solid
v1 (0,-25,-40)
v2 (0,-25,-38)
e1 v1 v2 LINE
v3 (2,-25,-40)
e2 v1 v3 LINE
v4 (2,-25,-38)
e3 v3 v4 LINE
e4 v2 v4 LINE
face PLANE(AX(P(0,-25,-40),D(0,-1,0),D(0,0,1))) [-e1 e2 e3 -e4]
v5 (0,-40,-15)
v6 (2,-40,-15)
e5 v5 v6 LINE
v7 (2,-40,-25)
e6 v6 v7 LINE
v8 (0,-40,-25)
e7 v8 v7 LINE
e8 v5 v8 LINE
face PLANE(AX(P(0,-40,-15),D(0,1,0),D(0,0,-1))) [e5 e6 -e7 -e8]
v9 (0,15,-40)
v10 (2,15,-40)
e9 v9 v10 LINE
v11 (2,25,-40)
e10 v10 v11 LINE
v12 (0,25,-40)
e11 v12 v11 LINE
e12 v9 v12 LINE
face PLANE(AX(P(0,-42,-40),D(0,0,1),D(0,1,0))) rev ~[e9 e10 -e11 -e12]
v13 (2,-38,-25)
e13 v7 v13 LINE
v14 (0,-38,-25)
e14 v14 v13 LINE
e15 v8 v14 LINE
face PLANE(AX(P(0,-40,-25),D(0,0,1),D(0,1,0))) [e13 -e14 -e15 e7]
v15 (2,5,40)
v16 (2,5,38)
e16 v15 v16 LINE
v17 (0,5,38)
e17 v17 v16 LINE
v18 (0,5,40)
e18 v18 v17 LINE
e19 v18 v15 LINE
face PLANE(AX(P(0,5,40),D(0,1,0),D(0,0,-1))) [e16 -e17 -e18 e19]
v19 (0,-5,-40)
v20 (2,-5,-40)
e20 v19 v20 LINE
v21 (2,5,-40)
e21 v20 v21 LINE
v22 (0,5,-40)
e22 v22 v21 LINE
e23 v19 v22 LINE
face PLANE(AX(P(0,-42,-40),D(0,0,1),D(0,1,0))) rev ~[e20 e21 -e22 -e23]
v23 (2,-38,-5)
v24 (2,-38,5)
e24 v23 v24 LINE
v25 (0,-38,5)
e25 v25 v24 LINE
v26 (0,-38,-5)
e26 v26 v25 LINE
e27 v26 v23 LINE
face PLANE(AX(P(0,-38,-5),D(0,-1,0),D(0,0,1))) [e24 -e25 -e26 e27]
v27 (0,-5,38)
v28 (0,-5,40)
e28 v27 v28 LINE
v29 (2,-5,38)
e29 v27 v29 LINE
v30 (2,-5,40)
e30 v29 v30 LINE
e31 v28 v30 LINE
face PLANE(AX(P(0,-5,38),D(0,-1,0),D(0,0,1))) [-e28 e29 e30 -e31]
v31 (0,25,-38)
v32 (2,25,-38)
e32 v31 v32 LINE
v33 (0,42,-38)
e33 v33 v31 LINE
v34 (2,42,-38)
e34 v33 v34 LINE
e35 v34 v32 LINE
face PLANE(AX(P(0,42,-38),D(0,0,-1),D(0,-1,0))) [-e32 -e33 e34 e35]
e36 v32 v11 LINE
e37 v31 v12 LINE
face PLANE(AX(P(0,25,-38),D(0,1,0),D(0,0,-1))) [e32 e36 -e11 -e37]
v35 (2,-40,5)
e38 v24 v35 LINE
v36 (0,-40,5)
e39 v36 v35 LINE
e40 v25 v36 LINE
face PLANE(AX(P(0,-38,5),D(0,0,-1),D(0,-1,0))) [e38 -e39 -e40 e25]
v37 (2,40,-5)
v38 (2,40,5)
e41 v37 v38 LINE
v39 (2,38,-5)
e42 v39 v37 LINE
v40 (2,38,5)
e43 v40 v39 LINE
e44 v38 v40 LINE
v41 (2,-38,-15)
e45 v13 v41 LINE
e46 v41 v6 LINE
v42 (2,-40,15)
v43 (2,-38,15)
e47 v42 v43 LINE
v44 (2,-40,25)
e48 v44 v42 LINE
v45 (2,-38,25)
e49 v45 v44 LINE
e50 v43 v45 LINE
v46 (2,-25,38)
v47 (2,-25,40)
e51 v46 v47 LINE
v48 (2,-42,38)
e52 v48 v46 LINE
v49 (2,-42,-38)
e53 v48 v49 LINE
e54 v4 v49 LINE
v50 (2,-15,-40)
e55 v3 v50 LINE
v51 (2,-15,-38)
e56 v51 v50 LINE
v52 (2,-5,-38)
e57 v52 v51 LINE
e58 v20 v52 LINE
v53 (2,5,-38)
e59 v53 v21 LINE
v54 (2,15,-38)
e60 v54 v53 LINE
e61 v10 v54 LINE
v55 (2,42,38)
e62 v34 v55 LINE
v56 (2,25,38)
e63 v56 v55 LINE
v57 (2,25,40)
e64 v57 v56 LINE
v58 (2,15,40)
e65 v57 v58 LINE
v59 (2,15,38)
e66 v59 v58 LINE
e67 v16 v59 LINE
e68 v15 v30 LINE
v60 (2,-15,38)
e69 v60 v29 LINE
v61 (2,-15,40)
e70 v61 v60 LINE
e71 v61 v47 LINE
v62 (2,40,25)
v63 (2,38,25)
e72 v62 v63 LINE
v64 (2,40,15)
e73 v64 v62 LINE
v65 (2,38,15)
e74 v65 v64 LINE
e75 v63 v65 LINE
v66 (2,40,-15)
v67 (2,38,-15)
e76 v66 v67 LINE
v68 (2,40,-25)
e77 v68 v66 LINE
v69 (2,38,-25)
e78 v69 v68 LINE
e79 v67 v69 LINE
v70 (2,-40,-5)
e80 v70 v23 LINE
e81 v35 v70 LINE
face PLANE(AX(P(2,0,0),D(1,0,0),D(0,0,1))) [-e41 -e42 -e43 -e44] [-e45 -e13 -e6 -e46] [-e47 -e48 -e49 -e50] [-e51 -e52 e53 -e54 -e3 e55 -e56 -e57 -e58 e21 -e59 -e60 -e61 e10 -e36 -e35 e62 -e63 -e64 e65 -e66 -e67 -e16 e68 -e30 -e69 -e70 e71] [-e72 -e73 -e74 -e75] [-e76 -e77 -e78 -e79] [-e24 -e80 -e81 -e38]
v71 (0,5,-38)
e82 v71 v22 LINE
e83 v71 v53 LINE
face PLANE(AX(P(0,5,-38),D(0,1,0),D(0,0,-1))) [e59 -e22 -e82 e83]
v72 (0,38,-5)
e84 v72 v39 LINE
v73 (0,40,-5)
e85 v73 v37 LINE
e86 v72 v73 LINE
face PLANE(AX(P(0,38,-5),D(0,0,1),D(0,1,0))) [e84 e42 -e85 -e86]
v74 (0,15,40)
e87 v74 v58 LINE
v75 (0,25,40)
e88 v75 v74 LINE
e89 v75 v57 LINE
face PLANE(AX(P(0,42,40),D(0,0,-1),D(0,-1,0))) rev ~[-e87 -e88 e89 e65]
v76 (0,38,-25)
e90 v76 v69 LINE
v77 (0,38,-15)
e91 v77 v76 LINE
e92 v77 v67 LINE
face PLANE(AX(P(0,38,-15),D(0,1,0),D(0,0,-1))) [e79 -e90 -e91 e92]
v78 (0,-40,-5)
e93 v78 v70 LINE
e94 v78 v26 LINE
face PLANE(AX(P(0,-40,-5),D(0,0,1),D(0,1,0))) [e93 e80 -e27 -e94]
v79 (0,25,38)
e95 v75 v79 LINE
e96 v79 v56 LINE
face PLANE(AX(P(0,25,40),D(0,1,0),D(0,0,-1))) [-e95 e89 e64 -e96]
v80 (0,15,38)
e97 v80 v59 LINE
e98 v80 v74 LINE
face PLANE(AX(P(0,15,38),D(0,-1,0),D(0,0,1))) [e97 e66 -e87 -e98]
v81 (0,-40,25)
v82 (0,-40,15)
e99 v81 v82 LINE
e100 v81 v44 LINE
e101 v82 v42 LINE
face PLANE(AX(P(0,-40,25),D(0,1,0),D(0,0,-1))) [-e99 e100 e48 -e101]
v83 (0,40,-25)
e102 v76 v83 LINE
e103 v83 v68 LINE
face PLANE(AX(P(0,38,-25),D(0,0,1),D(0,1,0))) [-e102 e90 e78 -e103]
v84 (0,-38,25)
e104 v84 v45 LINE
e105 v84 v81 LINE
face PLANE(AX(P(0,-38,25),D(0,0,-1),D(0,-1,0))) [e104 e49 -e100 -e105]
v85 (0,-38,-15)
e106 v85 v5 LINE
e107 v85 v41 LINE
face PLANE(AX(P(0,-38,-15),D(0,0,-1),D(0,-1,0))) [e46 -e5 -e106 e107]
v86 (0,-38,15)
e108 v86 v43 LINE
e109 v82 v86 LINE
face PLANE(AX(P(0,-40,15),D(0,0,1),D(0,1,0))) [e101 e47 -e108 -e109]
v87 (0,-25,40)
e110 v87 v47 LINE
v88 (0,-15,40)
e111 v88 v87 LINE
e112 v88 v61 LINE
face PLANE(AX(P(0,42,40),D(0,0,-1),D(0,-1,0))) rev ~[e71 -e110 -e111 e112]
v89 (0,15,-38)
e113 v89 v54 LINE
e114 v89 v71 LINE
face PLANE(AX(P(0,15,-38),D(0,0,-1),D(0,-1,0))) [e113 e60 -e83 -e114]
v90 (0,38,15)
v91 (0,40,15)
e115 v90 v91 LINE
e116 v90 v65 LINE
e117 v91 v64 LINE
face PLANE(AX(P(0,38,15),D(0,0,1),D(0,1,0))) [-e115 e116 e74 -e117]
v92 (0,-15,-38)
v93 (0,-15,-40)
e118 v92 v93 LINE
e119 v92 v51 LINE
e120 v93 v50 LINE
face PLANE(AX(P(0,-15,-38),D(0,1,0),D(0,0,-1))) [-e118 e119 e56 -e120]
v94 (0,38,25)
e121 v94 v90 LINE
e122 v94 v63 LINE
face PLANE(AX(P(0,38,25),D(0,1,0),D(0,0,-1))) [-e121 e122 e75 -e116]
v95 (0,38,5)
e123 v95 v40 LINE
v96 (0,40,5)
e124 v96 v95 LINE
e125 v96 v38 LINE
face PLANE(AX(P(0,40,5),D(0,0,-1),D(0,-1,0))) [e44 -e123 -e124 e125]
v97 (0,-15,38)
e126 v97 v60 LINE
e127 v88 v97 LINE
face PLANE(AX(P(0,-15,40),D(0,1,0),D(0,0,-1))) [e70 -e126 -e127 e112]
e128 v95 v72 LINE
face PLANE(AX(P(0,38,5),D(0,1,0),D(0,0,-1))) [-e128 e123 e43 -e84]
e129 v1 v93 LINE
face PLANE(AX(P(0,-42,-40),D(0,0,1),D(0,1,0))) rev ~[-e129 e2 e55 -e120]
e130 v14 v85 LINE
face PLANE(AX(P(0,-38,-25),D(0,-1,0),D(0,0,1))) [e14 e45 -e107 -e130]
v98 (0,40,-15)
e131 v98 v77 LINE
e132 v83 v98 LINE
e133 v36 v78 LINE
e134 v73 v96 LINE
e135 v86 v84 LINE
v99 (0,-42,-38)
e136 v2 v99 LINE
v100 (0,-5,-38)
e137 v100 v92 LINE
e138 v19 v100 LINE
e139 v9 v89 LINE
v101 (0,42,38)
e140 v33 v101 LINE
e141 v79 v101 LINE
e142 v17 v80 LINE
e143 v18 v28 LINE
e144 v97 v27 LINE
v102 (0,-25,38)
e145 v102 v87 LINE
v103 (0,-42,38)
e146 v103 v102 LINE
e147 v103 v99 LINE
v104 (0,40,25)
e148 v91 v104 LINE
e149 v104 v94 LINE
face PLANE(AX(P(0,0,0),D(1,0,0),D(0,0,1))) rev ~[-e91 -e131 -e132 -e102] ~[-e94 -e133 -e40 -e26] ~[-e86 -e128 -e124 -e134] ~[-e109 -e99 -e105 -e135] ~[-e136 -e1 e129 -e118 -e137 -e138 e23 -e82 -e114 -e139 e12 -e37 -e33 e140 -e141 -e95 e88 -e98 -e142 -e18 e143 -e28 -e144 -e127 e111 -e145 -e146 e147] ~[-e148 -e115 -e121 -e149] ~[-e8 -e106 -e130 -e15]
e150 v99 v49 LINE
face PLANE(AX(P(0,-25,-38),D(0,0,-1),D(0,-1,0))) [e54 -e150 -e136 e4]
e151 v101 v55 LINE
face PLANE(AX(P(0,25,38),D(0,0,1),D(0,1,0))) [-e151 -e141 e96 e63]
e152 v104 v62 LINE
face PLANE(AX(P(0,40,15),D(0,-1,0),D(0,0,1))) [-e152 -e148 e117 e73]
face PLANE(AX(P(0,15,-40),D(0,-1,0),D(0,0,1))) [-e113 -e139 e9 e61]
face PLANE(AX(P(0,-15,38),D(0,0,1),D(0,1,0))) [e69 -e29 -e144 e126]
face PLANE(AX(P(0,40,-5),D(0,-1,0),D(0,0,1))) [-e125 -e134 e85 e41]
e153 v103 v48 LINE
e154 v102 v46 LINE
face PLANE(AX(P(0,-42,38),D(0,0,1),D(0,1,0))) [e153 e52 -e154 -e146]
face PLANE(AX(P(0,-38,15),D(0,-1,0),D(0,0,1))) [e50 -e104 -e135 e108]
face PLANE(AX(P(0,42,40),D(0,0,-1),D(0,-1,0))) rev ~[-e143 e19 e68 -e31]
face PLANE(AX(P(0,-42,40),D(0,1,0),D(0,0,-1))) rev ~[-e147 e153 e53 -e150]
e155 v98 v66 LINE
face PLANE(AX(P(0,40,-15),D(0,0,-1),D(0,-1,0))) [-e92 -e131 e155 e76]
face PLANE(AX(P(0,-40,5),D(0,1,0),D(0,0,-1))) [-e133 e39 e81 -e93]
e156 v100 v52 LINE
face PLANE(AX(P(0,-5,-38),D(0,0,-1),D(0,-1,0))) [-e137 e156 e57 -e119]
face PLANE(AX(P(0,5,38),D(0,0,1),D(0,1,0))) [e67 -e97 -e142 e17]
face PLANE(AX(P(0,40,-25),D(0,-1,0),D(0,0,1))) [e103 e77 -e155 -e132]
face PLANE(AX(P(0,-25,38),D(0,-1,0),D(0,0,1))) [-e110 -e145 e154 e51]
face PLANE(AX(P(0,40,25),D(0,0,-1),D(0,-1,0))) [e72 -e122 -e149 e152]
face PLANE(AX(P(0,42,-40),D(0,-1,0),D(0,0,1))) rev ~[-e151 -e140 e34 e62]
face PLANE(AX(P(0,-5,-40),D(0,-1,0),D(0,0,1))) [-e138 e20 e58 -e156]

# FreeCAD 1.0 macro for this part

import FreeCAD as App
import Part
import Sketcher
Q = App.Units.Quantity


def add_polygon(sketch, points):
    """Adds a closed chain of lines whose ends are joined by coincident constraints."""
    first, n = sketch.GeometryCount, len(points)
    for a, b in zip(points, points[1:] + points[:1]):
        sketch.addGeometry(Part.LineSegment(App.Vector(*a, 0), App.Vector(*b, 0)), False)
    for i in range(n):
        sketch.addConstraint(Sketcher.Constraint("Coincident", first + i, 2, first + (i + 1) % n, 1))

doc = App.newDocument("Part")
body = doc.addObject("PartDesign::Body", "Body")

# Sketch on YZ plane
sketch1 = body.newObject("Sketcher::SketchObject", "Sketch")
sketch1.AttachmentSupport = (doc.getObject("YZ_Plane"), [""])
sketch1.MapMode = "FlatFace"
add_polygon(sketch1, [(-42, -40), (42, -40), (42, 40), (-42, 40)])  # lines 0-3
sketch1.addConstraint([
    Sketcher.Constraint("Horizontal", 0),
    Sketcher.Constraint("Vertical", 1),
    Sketcher.Constraint("Horizontal", 2),
    Sketcher.Constraint("Vertical", 3),
    Sketcher.Constraint("Symmetric", 0, 2, 2, 2, -1, 1),
    Sketcher.Constraint("DistanceX", 0, 1, 0, 2, Q("84 mm")),
    Sketcher.Constraint("DistanceY", 1, 1, 1, 2, Q("80 mm")),
])
pad1 = body.newObject("PartDesign::Pad", "Pad")
pad1.Profile = sketch1
pad1.Length = 2

# Sketch on YZ plane
sketch2 = body.newObject("Sketcher::SketchObject", "Sketch001")
sketch2.AttachmentSupport = (doc.getObject("YZ_Plane"), [""])
sketch2.MapMode = "FlatFace"
add_polygon(sketch2, [(-42, 40), (-42, 38), (-25, 38), (-25, 40)])  # lines 0-3
add_polygon(sketch2, [(-15, 40), (-15, 38), (-5, 38), (-5, 40)])  # lines 4-7
add_polygon(sketch2, [(5, 40), (5, 38), (15, 38), (15, 40)])  # lines 8-11
add_polygon(sketch2, [(25, 40), (25, 38), (42, 38), (42, 40)])  # lines 12-15
add_polygon(sketch2, [(38, 15), (40, 15), (40, 25), (38, 25)])  # lines 16-19
add_polygon(sketch2, [(40, 5), (38, 5), (38, -5), (40, -5)])  # lines 20-23
add_polygon(sketch2, [(40, -15), (38, -15), (38, -25), (40, -25)])  # lines 24-27
add_polygon(sketch2, [(42, -40), (42, -38), (25, -38), (25, -40)])  # lines 28-31
add_polygon(sketch2, [(15, -40), (15, -38), (5, -38), (5, -40)])  # lines 32-35
add_polygon(sketch2, [(-5, -40), (-5, -38), (-15, -38), (-15, -40)])  # lines 36-39
add_polygon(sketch2, [(-25, -40), (-25, -38), (-42, -38), (-42, -40)])  # lines 40-43
add_polygon(sketch2, [(-40, -25), (-38, -25), (-38, -15), (-40, -15)])  # lines 44-47
add_polygon(sketch2, [(-40, -5), (-38, -5), (-38, 5), (-40, 5)])  # lines 48-51
add_polygon(sketch2, [(-40, 15), (-38, 15), (-38, 25), (-40, 25)])  # lines 52-55
sketch2.addConstraint([
    Sketcher.Constraint("Vertical", 0),
    Sketcher.Constraint("Horizontal", 1),
    Sketcher.Constraint("Vertical", 2),
    Sketcher.Constraint("Horizontal", 3),
    Sketcher.Constraint("Vertical", 4),
    Sketcher.Constraint("Horizontal", 5),
    Sketcher.Constraint("Vertical", 6),
    Sketcher.Constraint("Horizontal", 7),
    Sketcher.Constraint("Vertical", 8),
    Sketcher.Constraint("Horizontal", 9),
    Sketcher.Constraint("Vertical", 10),
    Sketcher.Constraint("Horizontal", 11),
    Sketcher.Constraint("Vertical", 12),
    Sketcher.Constraint("Horizontal", 13),
    Sketcher.Constraint("Vertical", 14),
    Sketcher.Constraint("Horizontal", 15),
    Sketcher.Constraint("Horizontal", 16),
    Sketcher.Constraint("Vertical", 17),
    Sketcher.Constraint("Horizontal", 18),
    Sketcher.Constraint("Vertical", 19),
    Sketcher.Constraint("Horizontal", 20),
    Sketcher.Constraint("Vertical", 21),
    Sketcher.Constraint("Horizontal", 22),
    Sketcher.Constraint("Vertical", 23),
    Sketcher.Constraint("Horizontal", 24),
    Sketcher.Constraint("Vertical", 25),
    Sketcher.Constraint("Horizontal", 26),
    Sketcher.Constraint("Vertical", 27),
    Sketcher.Constraint("Vertical", 28),
    Sketcher.Constraint("Horizontal", 29),
    Sketcher.Constraint("Vertical", 30),
    Sketcher.Constraint("Horizontal", 31),
    Sketcher.Constraint("Vertical", 32),
    Sketcher.Constraint("Horizontal", 33),
    Sketcher.Constraint("Vertical", 34),
    Sketcher.Constraint("Horizontal", 35),
    Sketcher.Constraint("Vertical", 36),
    Sketcher.Constraint("Horizontal", 37),
    Sketcher.Constraint("Vertical", 38),
    Sketcher.Constraint("Horizontal", 39),
    Sketcher.Constraint("Vertical", 40),
    Sketcher.Constraint("Horizontal", 41),
    Sketcher.Constraint("Vertical", 42),
    Sketcher.Constraint("Horizontal", 43),
    Sketcher.Constraint("Horizontal", 44),
    Sketcher.Constraint("Vertical", 45),
    Sketcher.Constraint("Horizontal", 46),
    Sketcher.Constraint("Vertical", 47),
    Sketcher.Constraint("Horizontal", 48),
    Sketcher.Constraint("Vertical", 49),
    Sketcher.Constraint("Horizontal", 50),
    Sketcher.Constraint("Vertical", 51),
    Sketcher.Constraint("Horizontal", 52),
    Sketcher.Constraint("Vertical", 53),
    Sketcher.Constraint("Horizontal", 54),
    Sketcher.Constraint("Vertical", 55),
    Sketcher.Constraint("Symmetric", 0, 2, 28, 2, -1, 1),
    Sketcher.Constraint("Symmetric", 2, 2, 30, 2, -1, 1),
    Sketcher.Constraint("Symmetric", 4, 2, 32, 2, -1, 1),
    Sketcher.Constraint("Symmetric", 6, 2, 34, 2, -1, 1),
    Sketcher.Constraint("Symmetric", 8, 2, 36, 2, -1, 1),
    Sketcher.Constraint("Symmetric", 10, 2, 38, 2, -1, 1),
    Sketcher.Constraint("Symmetric", 12, 2, 40, 2, -1, 1),
    Sketcher.Constraint("Symmetric", 14, 2, 42, 2, -1, 1),
    Sketcher.Constraint("Symmetric", 18, 2, 44, 2, -1, 1),
    Sketcher.Constraint("Symmetric", 16, 2, 46, 2, -1, 1),
    Sketcher.Constraint("Symmetric", 20, 2, 48, 2, -1, 1),
    Sketcher.Constraint("Symmetric", 22, 2, 50, 2, -1, 1),
    Sketcher.Constraint("Symmetric", 24, 2, 52, 2, -1, 1),
    Sketcher.Constraint("Symmetric", 26, 2, 54, 2, -1, 1),
    Sketcher.Constraint("Symmetric", 5, 2, 8, 2, -2),
    Sketcher.Constraint("Symmetric", 7, 2, 10, 2, -2),
    Sketcher.Constraint("Symmetric", 1, 2, 12, 2, -2),
    Sketcher.Constraint("Symmetric", 3, 2, 14, 2, -2),
    Sketcher.Constraint("Symmetric", 25, 2, 44, 2, -2),
    Sketcher.Constraint("Symmetric", 27, 2, 46, 2, -2),
    Sketcher.Constraint("Horizontal", 1, 2, 4, 2),
    Sketcher.Constraint("Horizontal", 3, 2, 6, 2),
    Sketcher.Constraint("Horizontal", 22, 2, 48, 2),
    Sketcher.Constraint("Vertical", 19, 2, 20, 2),
    Sketcher.Constraint("Vertical", 17, 2, 22, 2),
    Sketcher.Constraint("Equal", 54, 0),
    Sketcher.Constraint("Equal", 39, 17),
    Sketcher.Constraint("Equal", 19, 21),
    Sketcher.Constraint("DistanceX", 1, 1, 1, 2, Q("17 mm")),
    Sketcher.Constraint("DistanceX", 5, 1, 5, 2, Q("10 mm")),
    Sketcher.Constraint("DistanceX", 16, 1, 16, 2, Q("2 mm")),
    Sketcher.Constraint("DistanceX", 0, 2, -1, 1, Q("42 mm")),
    Sketcher.Constraint("DistanceY", -1, 1, 0, 2, Q("38 mm")),
    Sketcher.Constraint("DistanceX", 4, 2, -1, 1, Q("15 mm")),
    Sketcher.Constraint("DistanceX", -1, 1, 16, 2, Q("40 mm")),
    Sketcher.Constraint("DistanceY", -1, 1, 16, 2, Q("15 mm")),
])
pocket1 = body.newObject("PartDesign::Pocket", "Pocket")
pocket1.Profile = sketch2
pocket1.Length = 2
pocket1.Reversed = True

doc.recompute()
